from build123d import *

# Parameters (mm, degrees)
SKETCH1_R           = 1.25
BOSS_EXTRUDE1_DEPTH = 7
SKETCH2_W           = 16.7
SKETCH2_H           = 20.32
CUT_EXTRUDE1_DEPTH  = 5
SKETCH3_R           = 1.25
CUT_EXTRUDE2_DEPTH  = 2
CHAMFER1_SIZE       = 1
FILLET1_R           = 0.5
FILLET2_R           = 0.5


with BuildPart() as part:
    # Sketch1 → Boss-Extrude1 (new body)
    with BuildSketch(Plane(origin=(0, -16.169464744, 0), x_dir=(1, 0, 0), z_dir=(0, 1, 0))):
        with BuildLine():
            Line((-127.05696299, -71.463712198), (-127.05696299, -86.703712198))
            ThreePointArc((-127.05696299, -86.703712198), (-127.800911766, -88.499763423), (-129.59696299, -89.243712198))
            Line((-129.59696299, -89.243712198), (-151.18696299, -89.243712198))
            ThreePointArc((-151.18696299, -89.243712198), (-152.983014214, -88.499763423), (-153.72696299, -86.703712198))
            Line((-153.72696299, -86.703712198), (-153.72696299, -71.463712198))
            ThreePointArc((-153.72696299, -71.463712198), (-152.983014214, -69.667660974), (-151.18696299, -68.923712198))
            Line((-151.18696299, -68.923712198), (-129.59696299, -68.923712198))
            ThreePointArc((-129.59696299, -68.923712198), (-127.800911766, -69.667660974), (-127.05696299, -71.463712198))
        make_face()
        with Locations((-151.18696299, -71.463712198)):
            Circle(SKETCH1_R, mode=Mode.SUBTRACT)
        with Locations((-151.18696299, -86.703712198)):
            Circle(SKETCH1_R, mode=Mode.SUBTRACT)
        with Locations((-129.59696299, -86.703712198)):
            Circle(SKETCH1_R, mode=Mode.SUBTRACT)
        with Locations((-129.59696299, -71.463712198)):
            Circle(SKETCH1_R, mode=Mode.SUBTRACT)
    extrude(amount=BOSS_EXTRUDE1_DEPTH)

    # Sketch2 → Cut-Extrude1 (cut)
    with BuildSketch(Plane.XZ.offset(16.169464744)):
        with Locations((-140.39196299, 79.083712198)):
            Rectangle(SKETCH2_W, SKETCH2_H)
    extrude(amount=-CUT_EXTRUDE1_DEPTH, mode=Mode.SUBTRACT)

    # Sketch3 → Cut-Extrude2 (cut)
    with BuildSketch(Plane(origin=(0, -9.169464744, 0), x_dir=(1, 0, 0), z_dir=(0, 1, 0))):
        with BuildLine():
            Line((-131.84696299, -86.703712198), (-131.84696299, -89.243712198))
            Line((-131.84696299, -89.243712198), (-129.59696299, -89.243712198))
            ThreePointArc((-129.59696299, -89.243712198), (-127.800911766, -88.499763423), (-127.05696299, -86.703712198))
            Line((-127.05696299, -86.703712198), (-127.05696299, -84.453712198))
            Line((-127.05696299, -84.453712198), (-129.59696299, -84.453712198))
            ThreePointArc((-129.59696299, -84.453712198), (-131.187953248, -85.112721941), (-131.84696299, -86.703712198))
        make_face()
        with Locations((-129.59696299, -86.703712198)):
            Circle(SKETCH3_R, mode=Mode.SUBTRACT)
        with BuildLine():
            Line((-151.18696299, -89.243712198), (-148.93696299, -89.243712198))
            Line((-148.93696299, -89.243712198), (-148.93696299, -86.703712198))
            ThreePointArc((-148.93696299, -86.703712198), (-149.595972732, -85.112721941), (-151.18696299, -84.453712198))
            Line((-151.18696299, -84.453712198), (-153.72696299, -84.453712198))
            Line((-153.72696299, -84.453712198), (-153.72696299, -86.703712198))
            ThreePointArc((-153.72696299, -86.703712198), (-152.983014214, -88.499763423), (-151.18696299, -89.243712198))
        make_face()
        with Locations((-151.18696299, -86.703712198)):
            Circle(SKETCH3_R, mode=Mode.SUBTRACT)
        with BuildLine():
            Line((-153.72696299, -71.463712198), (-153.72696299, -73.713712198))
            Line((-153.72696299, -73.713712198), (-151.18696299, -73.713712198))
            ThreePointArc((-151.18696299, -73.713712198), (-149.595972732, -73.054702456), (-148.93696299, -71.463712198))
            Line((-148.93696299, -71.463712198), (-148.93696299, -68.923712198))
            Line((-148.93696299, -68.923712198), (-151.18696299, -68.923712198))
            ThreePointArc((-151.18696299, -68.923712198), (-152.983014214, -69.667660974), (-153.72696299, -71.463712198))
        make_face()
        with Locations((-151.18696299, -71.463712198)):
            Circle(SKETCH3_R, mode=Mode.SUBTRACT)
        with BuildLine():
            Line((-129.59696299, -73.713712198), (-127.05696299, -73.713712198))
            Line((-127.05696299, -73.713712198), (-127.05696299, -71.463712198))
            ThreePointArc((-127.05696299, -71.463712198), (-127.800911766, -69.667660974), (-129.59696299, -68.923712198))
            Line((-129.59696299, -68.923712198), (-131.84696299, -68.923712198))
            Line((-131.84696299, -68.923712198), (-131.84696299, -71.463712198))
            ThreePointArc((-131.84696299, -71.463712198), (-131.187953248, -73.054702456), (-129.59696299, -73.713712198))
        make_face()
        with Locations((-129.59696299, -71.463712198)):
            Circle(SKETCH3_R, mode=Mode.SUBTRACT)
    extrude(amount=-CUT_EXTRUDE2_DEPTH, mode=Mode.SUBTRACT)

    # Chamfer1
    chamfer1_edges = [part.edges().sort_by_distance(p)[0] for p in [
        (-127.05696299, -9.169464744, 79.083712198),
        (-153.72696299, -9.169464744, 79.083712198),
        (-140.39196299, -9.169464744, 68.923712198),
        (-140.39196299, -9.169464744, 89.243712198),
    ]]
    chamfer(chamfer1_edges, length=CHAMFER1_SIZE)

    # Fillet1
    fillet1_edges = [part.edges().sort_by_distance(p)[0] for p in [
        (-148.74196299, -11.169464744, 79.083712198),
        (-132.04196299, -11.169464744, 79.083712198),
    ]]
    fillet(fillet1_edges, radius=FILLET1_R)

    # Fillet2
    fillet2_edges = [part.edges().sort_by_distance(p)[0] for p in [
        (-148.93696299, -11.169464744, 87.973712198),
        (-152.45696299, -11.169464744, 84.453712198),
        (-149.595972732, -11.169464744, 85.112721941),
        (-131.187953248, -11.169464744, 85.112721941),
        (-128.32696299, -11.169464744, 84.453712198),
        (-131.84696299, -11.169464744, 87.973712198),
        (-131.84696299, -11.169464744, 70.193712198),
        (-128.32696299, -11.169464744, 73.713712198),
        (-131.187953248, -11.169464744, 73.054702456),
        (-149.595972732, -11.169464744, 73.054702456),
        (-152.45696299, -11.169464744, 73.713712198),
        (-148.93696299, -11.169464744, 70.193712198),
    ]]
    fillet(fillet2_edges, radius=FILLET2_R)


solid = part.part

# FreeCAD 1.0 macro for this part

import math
import FreeCAD as App
import Part
import Sketcher
from FreeCAD import Vector


def edges_at(feature, points):
    """Names of the edges that pass closest to the given points."""
    edges = feature.Shape.Edges
    near = lambda p: min(range(len(edges)), key=lambda i: edges[i].distToShape(Part.Vertex(*p))[0])
    return sorted({f"Edge{near(p) + 1}" for p in points})


def add_polygon(sketch, points):
    """Adds a closed chain of lines whose ends are joined by coincident constraints."""
    first, n = sketch.GeometryCount, len(points)
    for a, b in zip(points, points[1:] + points[:1]):
        sketch.addGeometry(Part.LineSegment(App.Vector(*a, 0), App.Vector(*b, 0)), False)
    for i in range(n):
        sketch.addConstraint(Sketcher.Constraint("Coincident", first + i, 2, first + (i + 1) % n, 1))

doc = App.newDocument("Part")
body = doc.addObject("PartDesign::Body", "Body")

# Sketch on XZ plane
sketch1 = body.newObject("Sketcher::SketchObject", "Sketch")
sketch1.AttachmentSupport = (doc.getObject("XZ_Plane"), [""])
sketch1.MapMode = "FlatFace"
sketch1.AttachmentOffset = App.Placement(Vector(0, 0, 16.169465), App.Rotation())
sketch1.addGeometry([
    Part.LineSegment(Vector(-127.1, 86.7, 0), Vector(-127.1, 71.5, 0)),  # 0
    Part.ArcOfCircle(Part.Circle(Vector(-129.6, 71.5, 0), Vector(0, 0, 1), 2.5), math.radians(-90), math.radians(0)),  # 1
    Part.LineSegment(Vector(-129.6, 68.9, 0), Vector(-151.2, 68.9, 0)),  # 2
    Part.ArcOfCircle(Part.Circle(Vector(-151.2, 71.5, 0), Vector(0, 0, 1), 2.5), math.radians(-180), math.radians(-90)),  # 3
    Part.LineSegment(Vector(-153.7, 71.5, 0), Vector(-153.7, 86.7, 0)),  # 4
    Part.ArcOfCircle(Part.Circle(Vector(-151.2, 86.7, 0), Vector(0, 0, 1), 2.5), math.radians(90), math.radians(180)),  # 5
    Part.LineSegment(Vector(-151.2, 89.2, 0), Vector(-129.6, 89.2, 0)),  # 6
    Part.ArcOfCircle(Part.Circle(Vector(-129.6, 86.7, 0), Vector(0, 0, 1), 2.5), math.radians(0), math.radians(90)),  # 7
    Part.Circle(Vector(-129.6, 86.7, 0), Vector(0, 0, 1), 1.2),  # 8
    Part.Circle(Vector(-151.2, 86.7, 0), Vector(0, 0, 1), 1.2),  # 9
    Part.Circle(Vector(-129.6, 71.5, 0), Vector(0, 0, 1), 1.2),  # 10
    Part.Circle(Vector(-151.2, 71.5, 0), Vector(0, 0, 1), 1.2),  # 11
], False)
sketch1.addConstraint([
    Sketcher.Constraint("Tangent", 0, 2, 1, 2),
    Sketcher.Constraint("Tangent", 1, 1, 2, 1),
    Sketcher.Constraint("Tangent", 2, 2, 3, 2),
    Sketcher.Constraint("Tangent", 3, 1, 4, 1),
    Sketcher.Constraint("Tangent", 4, 2, 5, 2),
    Sketcher.Constraint("Tangent", 5, 1, 6, 1),
    Sketcher.Constraint("Tangent", 6, 2, 7, 2),
    Sketcher.Constraint("Tangent", 7, 1, 0, 1),
    Sketcher.Constraint("Vertical", 0),
    Sketcher.Constraint("Horizontal", 2),
    Sketcher.Constraint("Vertical", 4),
    Sketcher.Constraint("Horizontal", 6),
    Sketcher.Constraint("Coincident", 8, 3, 7, 3),
    Sketcher.Constraint("Coincident", 9, 3, 5, 3),
    Sketcher.Constraint("Coincident", 10, 3, 1, 3),
    Sketcher.Constraint("Coincident", 11, 3, 3, 3),
    Sketcher.Constraint("Equal", 1, 3),
    Sketcher.Constraint("Equal", 3, 5),
    Sketcher.Constraint("Equal", 5, 7),
    Sketcher.Constraint("Equal", 8, 9),
    Sketcher.Constraint("Equal", 9, 10),
    Sketcher.Constraint("Equal", 10, 11),
    Sketcher.Constraint("Diameter", 8, 2.5),
    Sketcher.Constraint("Radius", 1, 2.54),
    Sketcher.Constraint("DistanceX", 2, 2, 2, 1, 21.59),
    Sketcher.Constraint("DistanceY", 0, 2, 0, 1, 15.24),
    Sketcher.Constraint("DistanceX", 1, 3, -1, 1, 129.596963),
    Sketcher.Constraint("DistanceY", -1, 1, 1, 3, 71.463712),
])
pad1 = body.newObject("PartDesign::Pad", "Pad")
pad1.Profile = sketch1
pad1.Length = 7
pad1.Reversed = True

# Sketch on XZ plane
sketch2 = body.newObject("Sketcher::SketchObject", "Sketch001")
sketch2.AttachmentSupport = (doc.getObject("XZ_Plane"), [""])
sketch2.MapMode = "FlatFace"
sketch2.AttachmentOffset = App.Placement(Vector(0, 0, 16.169465), App.Rotation())
add_polygon(sketch2, [(-149, 89), (-149, 69), (-132, 69), (-132, 89)])  # lines 0-3
sketch2.addConstraint([
    Sketcher.Constraint("Vertical", 0),
    Sketcher.Constraint("Horizontal", 1),
    Sketcher.Constraint("Vertical", 2),
    Sketcher.Constraint("Horizontal", 3),
    Sketcher.Constraint("DistanceX", 1, 1, 1, 2, 16.7),
    Sketcher.Constraint("DistanceY", 0, 2, 0, 1, 20.32),
    Sketcher.Constraint("DistanceX", 0, 2, -1, 1, 148.741963),
    Sketcher.Constraint("DistanceY", -1, 1, 0, 2, 68.923712),
])
pocket1 = body.newObject("PartDesign::Pocket", "Pocket")
pocket1.Profile = sketch2
pocket1.Length = 5

# Sketch on XZ plane
sketch3 = body.newObject("Sketcher::SketchObject", "Sketch002")
sketch3.AttachmentSupport = (doc.getObject("XZ_Plane"), [""])
sketch3.MapMode = "FlatFace"
sketch3.AttachmentOffset = App.Placement(Vector(0, 0, 9.169465), App.Rotation())
sketch3.addGeometry([
    Part.LineSegment(Vector(-131.8, 86.7, 0), Vector(-131.8, 89.2, 0)),  # 0
    Part.LineSegment(Vector(-131.8, 89.2, 0), Vector(-129.6, 89.2, 0)),  # 1
    Part.ArcOfCircle(Part.Circle(Vector(-129.6, 86.7, 0), Vector(0, 0, 1), 2.5), math.radians(0), math.radians(90)),  # 2
    Part.LineSegment(Vector(-127.1, 86.7, 0), Vector(-127.1, 84.5, 0)),  # 3
    Part.LineSegment(Vector(-127.1, 84.5, 0), Vector(-129.6, 84.5, 0)),  # 4
    Part.ArcOfCircle(Part.Circle(Vector(-129.6, 86.7, 0), Vector(0, 0, 1), 2.3), math.radians(-180), math.radians(-90)),  # 5
    Part.Circle(Vector(-129.6, 86.7, 0), Vector(0, 0, 1), 1.2),  # 6
    Part.LineSegment(Vector(-151.2, 89.2, 0), Vector(-148.9, 89.2, 0)),  # 7
    Part.LineSegment(Vector(-148.9, 89.2, 0), Vector(-148.9, 86.7, 0)),  # 8
    Part.ArcOfCircle(Part.Circle(Vector(-151.2, 86.7, 0), Vector(0, 0, 1), 2.3), math.radians(-90), math.radians(0)),  # 9
    Part.LineSegment(Vector(-151.2, 84.5, 0), Vector(-153.7, 84.5, 0)),  # 10
    Part.LineSegment(Vector(-153.7, 84.5, 0), Vector(-153.7, 86.7, 0)),  # 11
    Part.ArcOfCircle(Part.Circle(Vector(-151.2, 86.7, 0), Vector(0, 0, 1), 2.5), math.radians(90), math.radians(180)),  # 12
    Part.Circle(Vector(-151.2, 86.7, 0), Vector(0, 0, 1), 1.2),  # 13
    Part.LineSegment(Vector(-153.7, 71.5, 0), Vector(-153.7, 73.7, 0)),  # 14
    Part.LineSegment(Vector(-153.7, 73.7, 0), Vector(-151.2, 73.7, 0)),  # 15
    Part.ArcOfCircle(Part.Circle(Vector(-151.2, 71.5, 0), Vector(0, 0, 1), 2.2), math.radians(0), math.radians(90)),  # 16
    Part.LineSegment(Vector(-148.9, 71.5, 0), Vector(-148.9, 68.9, 0)),  # 17
    Part.LineSegment(Vector(-148.9, 68.9, 0), Vector(-151.2, 68.9, 0)),  # 18
    Part.ArcOfCircle(Part.Circle(Vector(-151.2, 71.5, 0), Vector(0, 0, 1), 2.5), math.radians(-180), math.radians(-90)),  # 19
    Part.Circle(Vector(-151.2, 71.5, 0), Vector(0, 0, 1), 1.2),  # 20
    Part.LineSegment(Vector(-129.6, 73.7, 0), Vector(-127.1, 73.7, 0)),  # 21
    Part.LineSegment(Vector(-127.1, 73.7, 0), Vector(-127.1, 71.5, 0)),  # 22
    Part.ArcOfCircle(Part.Circle(Vector(-129.6, 71.5, 0), Vector(0, 0, 1), 2.5), math.radians(-90), math.radians(0)),  # 23
    Part.LineSegment(Vector(-129.6, 68.9, 0), Vector(-131.8, 68.9, 0)),  # 24
    Part.LineSegment(Vector(-131.8, 68.9, 0), Vector(-131.8, 71.5, 0)),  # 25
    Part.ArcOfCircle(Part.Circle(Vector(-129.6, 71.5, 0), Vector(0, 0, 1), 2.2), math.radians(90), math.radians(180)),  # 26
    Part.Circle(Vector(-129.6, 71.5, 0), Vector(0, 0, 1), 1.2),  # 27
], False)
sketch3.addConstraint([
    Sketcher.Constraint("Coincident", 0, 2, 1, 1),
    Sketcher.Constraint("Tangent", 1, 2, 2, 2),
    Sketcher.Constraint("Tangent", 2, 1, 3, 1),
    Sketcher.Constraint("Coincident", 3, 2, 4, 1),
    Sketcher.Constraint("Tangent", 4, 2, 5, 2),
    Sketcher.Constraint("Tangent", 5, 1, 0, 1),
    Sketcher.Constraint("Coincident", 7, 2, 8, 1),
    Sketcher.Constraint("Tangent", 8, 2, 9, 2),
    Sketcher.Constraint("Tangent", 9, 1, 10, 1),
    Sketcher.Constraint("Coincident", 10, 2, 11, 1),
    Sketcher.Constraint("Tangent", 11, 2, 12, 2),
    Sketcher.Constraint("Tangent", 12, 1, 7, 1),
    Sketcher.Constraint("Coincident", 14, 2, 15, 1),
    Sketcher.Constraint("Tangent", 15, 2, 16, 2),
    Sketcher.Constraint("Tangent", 16, 1, 17, 1),
    Sketcher.Constraint("Coincident", 17, 2, 18, 1),
    Sketcher.Constraint("Tangent", 18, 2, 19, 2),
    Sketcher.Constraint("Tangent", 19, 1, 14, 1),
    Sketcher.Constraint("Coincident", 21, 2, 22, 1),
    Sketcher.Constraint("Tangent", 22, 2, 23, 2),
    Sketcher.Constraint("Tangent", 23, 1, 24, 1),
    Sketcher.Constraint("Coincident", 24, 2, 25, 1),
    Sketcher.Constraint("Tangent", 25, 2, 26, 2),
    Sketcher.Constraint("Tangent", 26, 1, 21, 1),
    Sketcher.Constraint("Vertical", 0),
    Sketcher.Constraint("Horizontal", 1),
    Sketcher.Constraint("Vertical", 3),
    Sketcher.Constraint("Horizontal", 4),
    Sketcher.Constraint("Horizontal", 7),
    Sketcher.Constraint("Vertical", 8),
    Sketcher.Constraint("Horizontal", 10),
    Sketcher.Constraint("Vertical", 11),
    Sketcher.Constraint("Vertical", 14),
    Sketcher.Constraint("Horizontal", 15),
    Sketcher.Constraint("Vertical", 17),
    Sketcher.Constraint("Horizontal", 18),
    Sketcher.Constraint("Horizontal", 21),
    Sketcher.Constraint("Vertical", 22),
    Sketcher.Constraint("Horizontal", 24),
    Sketcher.Constraint("Vertical", 25),
    Sketcher.Constraint("Coincident", 5, 3, 2, 3),
    Sketcher.Constraint("Coincident", 6, 3, 2, 3),
    Sketcher.Constraint("Coincident", 12, 3, 9, 3),
    Sketcher.Constraint("Coincident", 13, 3, 9, 3),
    Sketcher.Constraint("Coincident", 19, 3, 16, 3),
    Sketcher.Constraint("Coincident", 20, 3, 16, 3),
    Sketcher.Constraint("Coincident", 26, 3, 23, 3),
    Sketcher.Constraint("Coincident", 27, 3, 23, 3),
    Sketcher.Constraint("Equal", 5, 9),
    Sketcher.Constraint("Equal", 2, 12),
    Sketcher.Constraint("Equal", 6, 13),
    Sketcher.Constraint("Equal", 9, 16),
    Sketcher.Constraint("Equal", 12, 19),
    Sketcher.Constraint("Equal", 13, 20),
    Sketcher.Constraint("Equal", 19, 23),
    Sketcher.Constraint("Equal", 16, 26),
    Sketcher.Constraint("Equal", 20, 27),
    Sketcher.Constraint("Horizontal", 6, 3, 9, 3),
    Sketcher.Constraint("Horizontal", 20, 3, 23, 3),
    Sketcher.Constraint("Vertical", 13, 3, 16, 3),
    Sketcher.Constraint("Vertical", 6, 3, 23, 3),
    Sketcher.Constraint("Diameter", 6, 2.5),
    Sketcher.Constraint("Radius", 2, 2.54),
    Sketcher.Constraint("Radius", 5, 2.25),
    Sketcher.Constraint("DistanceX", 9, 3, 6, 3, 21.59),
    Sketcher.Constraint("DistanceY", 16, 3, 13, 3, 15.24),
    Sketcher.Constraint("DistanceX", 2, 3, -1, 1, 129.596963),
    Sketcher.Constraint("DistanceY", -1, 1, 2, 3, 86.703712),
])
pocket2 = body.newObject("PartDesign::Pocket", "Pocket001")
pocket2.Profile = sketch3
pocket2.Length = 2
pocket2.Reversed = True
doc.recompute()

chamfer = body.newObject("PartDesign::Chamfer", "Chamfer")
chamfer.Base = (pocket2, edges_at(pocket2, [
    (-127.057, -9.169, 79.084),
    (-153.727, -9.169, 79.084),
    (-140.392, -9.169, 68.924),
    (-140.392, -9.169, 89.244),
]))
chamfer.Size = 1
doc.recompute()

fillet = body.newObject("PartDesign::Fillet", "Fillet")
fillet.Base = (chamfer, edges_at(chamfer, [(-148.742, -11.169, 79.084), (-132.042, -11.169, 79.084)]))
fillet.Radius = 0.5
doc.recompute()

fillet2 = body.newObject("PartDesign::Fillet", "Fillet001")
fillet2.Base = (fillet, edges_at(fillet, [
    (-148.937, -11.169, 87.974),
    (-152.457, -11.169, 84.454),
    (-149.596, -11.169, 85.113),
    (-131.188, -11.169, 85.113),
    (-128.327, -11.169, 84.454),
    (-131.847, -11.169, 87.974),
    (-131.847, -11.169, 70.194),
    (-128.327, -11.169, 73.714),
    (-131.188, -11.169, 73.055),
    (-149.596, -11.169, 73.055),
    (-152.457, -11.169, 73.714),
    (-148.937, -11.169, 70.194),
]))
fillet2.Radius = 0.5

doc.recompute()
